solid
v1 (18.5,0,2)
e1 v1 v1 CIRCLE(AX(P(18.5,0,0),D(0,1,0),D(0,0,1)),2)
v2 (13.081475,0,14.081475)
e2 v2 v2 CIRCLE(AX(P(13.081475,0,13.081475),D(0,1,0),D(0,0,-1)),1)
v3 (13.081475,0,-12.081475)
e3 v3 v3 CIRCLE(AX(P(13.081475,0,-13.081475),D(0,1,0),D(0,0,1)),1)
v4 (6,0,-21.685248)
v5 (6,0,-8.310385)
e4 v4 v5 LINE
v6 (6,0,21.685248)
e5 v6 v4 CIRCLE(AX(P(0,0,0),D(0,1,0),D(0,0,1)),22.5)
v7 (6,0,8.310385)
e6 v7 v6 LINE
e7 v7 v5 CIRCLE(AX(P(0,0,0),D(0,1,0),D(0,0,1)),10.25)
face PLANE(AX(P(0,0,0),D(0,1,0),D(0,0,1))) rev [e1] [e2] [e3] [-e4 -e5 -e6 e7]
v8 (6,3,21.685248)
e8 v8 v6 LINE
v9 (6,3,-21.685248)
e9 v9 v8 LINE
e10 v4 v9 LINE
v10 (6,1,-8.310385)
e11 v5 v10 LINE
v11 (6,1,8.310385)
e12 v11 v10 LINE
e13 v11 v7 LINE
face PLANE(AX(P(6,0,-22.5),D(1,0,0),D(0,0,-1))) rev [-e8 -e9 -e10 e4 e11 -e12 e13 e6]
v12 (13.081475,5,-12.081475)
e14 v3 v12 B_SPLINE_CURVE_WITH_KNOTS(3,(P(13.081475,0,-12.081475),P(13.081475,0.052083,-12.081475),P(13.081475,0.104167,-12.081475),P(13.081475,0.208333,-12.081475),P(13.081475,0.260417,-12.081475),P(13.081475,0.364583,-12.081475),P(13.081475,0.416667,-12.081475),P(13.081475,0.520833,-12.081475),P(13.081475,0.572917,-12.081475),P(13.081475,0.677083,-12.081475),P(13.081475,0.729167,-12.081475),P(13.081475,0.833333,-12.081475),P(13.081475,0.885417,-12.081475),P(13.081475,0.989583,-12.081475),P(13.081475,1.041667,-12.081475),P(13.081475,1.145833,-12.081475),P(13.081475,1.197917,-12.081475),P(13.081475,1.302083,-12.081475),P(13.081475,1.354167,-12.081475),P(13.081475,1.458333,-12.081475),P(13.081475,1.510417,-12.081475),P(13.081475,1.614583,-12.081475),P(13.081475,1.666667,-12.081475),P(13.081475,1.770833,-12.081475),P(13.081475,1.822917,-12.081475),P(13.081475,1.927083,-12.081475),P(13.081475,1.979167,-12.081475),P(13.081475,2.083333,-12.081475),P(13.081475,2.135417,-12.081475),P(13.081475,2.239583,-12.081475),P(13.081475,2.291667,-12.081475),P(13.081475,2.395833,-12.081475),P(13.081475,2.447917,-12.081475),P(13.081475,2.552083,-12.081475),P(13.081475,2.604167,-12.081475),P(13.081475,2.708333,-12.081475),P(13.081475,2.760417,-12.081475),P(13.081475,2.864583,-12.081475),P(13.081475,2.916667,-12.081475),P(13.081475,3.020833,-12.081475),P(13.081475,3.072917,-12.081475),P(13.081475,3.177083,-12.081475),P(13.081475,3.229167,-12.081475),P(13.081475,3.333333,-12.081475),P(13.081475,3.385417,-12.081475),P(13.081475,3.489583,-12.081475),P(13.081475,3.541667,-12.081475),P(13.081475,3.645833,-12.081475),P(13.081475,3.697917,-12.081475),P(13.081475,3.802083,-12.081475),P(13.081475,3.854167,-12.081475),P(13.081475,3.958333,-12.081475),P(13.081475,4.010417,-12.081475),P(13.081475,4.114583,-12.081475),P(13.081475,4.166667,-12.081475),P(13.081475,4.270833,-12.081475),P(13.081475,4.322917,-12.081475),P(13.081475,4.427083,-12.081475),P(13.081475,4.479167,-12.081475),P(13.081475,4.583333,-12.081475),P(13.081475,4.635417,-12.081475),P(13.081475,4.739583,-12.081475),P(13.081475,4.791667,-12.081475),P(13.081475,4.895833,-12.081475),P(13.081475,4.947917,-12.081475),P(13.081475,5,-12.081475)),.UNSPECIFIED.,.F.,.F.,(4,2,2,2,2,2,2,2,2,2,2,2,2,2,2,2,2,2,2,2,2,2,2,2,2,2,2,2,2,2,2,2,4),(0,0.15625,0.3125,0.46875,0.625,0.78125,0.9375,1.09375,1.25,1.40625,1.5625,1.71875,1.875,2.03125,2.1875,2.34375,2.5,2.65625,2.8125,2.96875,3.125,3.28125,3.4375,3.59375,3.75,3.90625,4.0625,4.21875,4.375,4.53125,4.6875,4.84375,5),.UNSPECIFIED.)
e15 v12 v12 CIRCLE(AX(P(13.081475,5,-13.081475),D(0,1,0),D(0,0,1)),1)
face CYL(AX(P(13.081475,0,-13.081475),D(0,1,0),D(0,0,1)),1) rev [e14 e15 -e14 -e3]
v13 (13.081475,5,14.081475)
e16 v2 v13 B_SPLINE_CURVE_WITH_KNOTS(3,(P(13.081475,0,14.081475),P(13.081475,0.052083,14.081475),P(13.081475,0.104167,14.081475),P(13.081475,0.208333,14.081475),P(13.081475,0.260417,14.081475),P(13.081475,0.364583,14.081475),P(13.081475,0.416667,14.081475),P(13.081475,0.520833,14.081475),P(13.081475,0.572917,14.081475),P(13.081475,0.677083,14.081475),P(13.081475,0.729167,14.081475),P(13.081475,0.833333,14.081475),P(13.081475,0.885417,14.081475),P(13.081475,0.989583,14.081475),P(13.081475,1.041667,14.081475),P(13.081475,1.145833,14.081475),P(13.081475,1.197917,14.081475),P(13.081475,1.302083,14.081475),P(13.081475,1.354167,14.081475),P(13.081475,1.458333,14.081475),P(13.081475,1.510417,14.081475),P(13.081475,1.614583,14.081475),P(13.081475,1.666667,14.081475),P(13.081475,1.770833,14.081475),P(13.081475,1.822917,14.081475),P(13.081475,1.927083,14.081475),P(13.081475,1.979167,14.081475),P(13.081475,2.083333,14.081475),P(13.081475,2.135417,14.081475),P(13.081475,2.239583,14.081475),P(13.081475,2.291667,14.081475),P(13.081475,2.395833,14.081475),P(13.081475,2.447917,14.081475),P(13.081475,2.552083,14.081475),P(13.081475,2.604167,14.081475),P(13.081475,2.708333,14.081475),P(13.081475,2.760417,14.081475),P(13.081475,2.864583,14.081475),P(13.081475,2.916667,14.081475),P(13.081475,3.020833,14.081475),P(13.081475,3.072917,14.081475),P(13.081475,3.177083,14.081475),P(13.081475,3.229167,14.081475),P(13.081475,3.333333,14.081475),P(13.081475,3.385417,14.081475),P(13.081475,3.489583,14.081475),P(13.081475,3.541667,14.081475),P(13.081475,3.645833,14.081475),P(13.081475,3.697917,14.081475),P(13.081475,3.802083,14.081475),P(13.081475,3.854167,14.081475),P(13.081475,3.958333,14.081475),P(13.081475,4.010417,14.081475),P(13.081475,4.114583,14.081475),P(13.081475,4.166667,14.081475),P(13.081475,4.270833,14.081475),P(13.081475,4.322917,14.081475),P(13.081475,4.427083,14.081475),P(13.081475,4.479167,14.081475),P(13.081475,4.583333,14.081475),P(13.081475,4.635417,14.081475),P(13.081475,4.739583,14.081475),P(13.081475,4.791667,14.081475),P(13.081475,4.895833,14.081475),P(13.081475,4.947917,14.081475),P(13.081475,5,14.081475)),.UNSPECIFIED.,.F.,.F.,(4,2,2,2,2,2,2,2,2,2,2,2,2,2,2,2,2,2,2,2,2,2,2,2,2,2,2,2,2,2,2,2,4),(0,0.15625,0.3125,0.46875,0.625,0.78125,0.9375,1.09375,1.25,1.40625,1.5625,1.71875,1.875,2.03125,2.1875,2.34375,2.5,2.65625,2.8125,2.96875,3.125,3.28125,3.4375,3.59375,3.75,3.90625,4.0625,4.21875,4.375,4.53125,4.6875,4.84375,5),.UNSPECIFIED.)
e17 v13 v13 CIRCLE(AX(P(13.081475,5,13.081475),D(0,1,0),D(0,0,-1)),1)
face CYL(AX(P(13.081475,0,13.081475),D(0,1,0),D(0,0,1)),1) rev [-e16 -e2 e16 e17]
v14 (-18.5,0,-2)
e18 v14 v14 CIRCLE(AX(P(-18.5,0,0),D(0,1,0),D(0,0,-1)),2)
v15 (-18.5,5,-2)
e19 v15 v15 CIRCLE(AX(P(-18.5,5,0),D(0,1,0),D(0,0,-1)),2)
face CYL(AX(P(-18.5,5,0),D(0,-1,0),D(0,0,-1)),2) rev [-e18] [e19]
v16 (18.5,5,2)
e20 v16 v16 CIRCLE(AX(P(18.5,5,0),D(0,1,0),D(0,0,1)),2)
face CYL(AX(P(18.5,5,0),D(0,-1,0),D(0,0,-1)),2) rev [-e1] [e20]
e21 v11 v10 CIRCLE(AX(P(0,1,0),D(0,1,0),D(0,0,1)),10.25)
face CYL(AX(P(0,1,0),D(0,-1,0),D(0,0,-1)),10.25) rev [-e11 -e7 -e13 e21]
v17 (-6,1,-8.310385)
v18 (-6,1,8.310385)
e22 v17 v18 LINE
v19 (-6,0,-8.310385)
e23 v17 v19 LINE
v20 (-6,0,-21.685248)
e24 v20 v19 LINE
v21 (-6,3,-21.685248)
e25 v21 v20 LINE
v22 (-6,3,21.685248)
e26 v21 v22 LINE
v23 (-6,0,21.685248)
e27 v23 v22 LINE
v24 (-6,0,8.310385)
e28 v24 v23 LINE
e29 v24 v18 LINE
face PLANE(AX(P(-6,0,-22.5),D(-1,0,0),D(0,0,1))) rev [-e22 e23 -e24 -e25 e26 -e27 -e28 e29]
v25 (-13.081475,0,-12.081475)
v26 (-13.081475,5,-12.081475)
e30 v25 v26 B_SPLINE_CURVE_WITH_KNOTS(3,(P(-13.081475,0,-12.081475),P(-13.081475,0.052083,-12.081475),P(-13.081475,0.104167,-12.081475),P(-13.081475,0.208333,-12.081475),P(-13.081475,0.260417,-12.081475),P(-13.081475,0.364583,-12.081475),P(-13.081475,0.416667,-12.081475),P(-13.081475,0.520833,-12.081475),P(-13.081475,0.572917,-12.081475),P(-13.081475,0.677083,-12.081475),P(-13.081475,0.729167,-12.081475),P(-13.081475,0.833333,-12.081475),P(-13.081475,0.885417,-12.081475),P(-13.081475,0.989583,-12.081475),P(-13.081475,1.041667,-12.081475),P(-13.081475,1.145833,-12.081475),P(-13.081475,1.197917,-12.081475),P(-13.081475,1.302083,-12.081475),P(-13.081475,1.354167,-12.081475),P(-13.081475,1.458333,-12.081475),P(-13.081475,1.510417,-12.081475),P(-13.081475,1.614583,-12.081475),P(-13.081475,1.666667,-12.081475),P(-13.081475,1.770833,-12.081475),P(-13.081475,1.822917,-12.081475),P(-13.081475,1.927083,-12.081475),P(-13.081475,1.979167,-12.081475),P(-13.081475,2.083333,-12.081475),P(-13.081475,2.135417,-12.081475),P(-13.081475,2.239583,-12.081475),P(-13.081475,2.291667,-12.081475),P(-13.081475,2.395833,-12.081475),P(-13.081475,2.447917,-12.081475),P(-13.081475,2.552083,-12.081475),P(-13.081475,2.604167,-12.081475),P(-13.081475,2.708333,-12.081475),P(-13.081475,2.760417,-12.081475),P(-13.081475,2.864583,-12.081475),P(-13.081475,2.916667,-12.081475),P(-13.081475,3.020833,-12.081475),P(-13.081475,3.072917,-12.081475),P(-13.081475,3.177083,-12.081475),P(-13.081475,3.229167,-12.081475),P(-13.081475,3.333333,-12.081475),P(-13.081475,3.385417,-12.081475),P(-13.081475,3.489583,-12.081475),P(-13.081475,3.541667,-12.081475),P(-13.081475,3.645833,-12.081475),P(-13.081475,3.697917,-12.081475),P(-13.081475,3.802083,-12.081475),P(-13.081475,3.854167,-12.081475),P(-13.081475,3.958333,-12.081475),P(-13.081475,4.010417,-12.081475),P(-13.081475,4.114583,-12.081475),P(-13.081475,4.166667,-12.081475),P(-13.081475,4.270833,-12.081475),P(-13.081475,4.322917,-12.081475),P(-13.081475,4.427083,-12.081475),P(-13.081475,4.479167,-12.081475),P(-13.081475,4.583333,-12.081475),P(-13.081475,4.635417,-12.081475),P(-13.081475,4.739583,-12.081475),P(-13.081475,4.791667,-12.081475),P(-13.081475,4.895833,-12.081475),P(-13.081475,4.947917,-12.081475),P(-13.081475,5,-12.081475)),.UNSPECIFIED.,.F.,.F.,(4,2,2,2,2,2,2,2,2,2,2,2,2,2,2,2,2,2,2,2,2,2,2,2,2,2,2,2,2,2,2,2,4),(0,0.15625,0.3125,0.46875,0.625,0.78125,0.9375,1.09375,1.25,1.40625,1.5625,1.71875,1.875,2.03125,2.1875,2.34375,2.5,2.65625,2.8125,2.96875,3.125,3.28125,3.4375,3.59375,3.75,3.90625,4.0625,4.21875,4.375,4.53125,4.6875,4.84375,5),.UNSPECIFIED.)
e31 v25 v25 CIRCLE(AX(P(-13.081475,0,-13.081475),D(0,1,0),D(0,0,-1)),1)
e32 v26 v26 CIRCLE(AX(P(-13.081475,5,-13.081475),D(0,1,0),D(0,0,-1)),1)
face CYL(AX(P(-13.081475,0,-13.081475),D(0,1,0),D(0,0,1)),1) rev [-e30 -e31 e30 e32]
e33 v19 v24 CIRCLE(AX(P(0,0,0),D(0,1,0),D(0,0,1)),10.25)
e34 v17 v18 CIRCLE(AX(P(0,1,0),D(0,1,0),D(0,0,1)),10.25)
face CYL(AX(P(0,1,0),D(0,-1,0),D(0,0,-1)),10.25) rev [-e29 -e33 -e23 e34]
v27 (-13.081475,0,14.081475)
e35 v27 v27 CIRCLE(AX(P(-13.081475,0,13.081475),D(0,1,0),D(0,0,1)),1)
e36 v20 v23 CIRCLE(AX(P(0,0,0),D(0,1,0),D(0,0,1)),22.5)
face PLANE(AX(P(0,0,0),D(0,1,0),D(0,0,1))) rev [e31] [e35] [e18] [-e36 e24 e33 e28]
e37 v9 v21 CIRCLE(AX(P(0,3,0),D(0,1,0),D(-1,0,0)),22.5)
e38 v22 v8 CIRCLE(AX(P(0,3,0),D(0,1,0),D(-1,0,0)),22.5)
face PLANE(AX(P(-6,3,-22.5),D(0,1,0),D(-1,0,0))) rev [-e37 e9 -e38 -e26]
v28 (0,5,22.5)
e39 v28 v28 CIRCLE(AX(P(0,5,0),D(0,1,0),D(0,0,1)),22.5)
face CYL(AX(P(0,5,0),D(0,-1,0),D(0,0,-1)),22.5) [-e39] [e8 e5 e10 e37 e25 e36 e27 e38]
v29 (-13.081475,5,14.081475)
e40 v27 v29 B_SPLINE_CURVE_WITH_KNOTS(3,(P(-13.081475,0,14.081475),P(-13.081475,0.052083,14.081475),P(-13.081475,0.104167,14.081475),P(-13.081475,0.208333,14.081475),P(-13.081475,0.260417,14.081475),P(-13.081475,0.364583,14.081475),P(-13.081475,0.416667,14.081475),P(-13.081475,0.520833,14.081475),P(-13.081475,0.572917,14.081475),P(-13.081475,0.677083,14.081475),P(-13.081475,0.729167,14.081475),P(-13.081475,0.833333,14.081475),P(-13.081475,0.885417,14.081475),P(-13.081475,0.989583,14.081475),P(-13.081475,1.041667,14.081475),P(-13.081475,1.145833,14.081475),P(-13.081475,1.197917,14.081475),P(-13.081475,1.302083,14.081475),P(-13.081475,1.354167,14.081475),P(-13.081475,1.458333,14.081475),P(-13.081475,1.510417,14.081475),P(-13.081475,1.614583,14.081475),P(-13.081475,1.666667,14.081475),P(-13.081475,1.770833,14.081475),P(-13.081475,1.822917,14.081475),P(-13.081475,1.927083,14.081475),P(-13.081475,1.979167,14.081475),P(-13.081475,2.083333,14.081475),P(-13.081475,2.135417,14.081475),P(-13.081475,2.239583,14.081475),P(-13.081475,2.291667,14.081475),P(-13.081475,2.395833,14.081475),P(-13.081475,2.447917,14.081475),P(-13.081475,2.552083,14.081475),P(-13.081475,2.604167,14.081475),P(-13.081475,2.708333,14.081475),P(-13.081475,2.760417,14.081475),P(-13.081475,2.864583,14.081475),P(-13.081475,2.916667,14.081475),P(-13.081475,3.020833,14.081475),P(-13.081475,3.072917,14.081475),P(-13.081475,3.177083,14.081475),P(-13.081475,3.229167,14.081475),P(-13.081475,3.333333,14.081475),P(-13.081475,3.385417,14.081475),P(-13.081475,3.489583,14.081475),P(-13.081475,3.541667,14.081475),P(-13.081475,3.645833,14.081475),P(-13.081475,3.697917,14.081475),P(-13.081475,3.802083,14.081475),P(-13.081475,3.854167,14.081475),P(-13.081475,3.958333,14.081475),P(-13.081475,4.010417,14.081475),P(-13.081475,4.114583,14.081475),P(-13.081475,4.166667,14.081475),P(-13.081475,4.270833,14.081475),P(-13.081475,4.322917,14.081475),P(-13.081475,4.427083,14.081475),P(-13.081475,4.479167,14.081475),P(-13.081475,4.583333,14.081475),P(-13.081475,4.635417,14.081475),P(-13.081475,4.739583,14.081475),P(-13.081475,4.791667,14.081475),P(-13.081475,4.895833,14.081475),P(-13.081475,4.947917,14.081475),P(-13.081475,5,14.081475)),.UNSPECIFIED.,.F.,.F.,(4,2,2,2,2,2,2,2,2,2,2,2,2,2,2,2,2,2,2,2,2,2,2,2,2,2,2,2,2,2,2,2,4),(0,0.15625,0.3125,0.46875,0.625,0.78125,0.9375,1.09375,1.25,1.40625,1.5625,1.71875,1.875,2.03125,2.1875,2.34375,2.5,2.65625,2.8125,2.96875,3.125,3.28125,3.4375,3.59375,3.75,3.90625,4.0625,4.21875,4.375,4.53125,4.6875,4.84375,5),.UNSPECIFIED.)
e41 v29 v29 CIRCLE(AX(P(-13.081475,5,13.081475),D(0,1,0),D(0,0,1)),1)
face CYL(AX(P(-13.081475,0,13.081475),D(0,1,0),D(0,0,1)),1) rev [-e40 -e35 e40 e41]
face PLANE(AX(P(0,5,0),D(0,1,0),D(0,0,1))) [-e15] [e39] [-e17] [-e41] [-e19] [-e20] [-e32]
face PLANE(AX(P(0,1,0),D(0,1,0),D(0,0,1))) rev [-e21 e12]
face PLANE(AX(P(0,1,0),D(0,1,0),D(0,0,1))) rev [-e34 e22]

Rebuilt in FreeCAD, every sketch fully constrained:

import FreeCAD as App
import Part
import Sketcher
from FreeCAD import Vector
Q = App.Units.Quantity

doc = App.newDocument("Part")
body = doc.addObject("PartDesign::Body", "Body")

sketch1 = body.newObject("Sketcher::SketchObject", "Sketch")
sketch1.AttachmentSupport = (doc.getObject("XZ_Plane"), [""])
sketch1.MapMode = "FlatFace"
sketch1.addGeometry(Part.Circle(Vector(0, 0, 0), Vector(0, 0, 1), 22.5), False)
sketch1.addGeometry(Part.Circle(Vector(-18.5, 0, 0), Vector(0, 0, 1), 2), False)
sketch1.addGeometry(Part.Circle(Vector(18.5, 0, 0), Vector(0, 0, 1), 2), False)
sketch1.addConstraint(Sketcher.Constraint("Coincident", 0, 3, -1, 1))
sketch1.addConstraint(Sketcher.Constraint("Equal", 1, 2))
sketch1.addConstraint(Sketcher.Constraint("Symmetric", 1, 3, 2, 3, -1, 1))
sketch1.addConstraint(Sketcher.Constraint("PointOnObject", 1, 3, -1))
sketch1.addConstraint(Sketcher.Constraint("Diameter", 0, Q("45 mm")))
sketch1.addConstraint(Sketcher.Constraint("Diameter", 1, Q("4 mm")))
sketch1.addConstraint(Sketcher.Constraint("DistanceX", 1, 3, 2, 3, Q("37 mm")))
pad1 = body.newObject("PartDesign::Pad", "Pad")
pad1.Profile = sketch1
pad1.Length = 5
pad1.Reversed = True

sketch2 = body.newObject("Sketcher::SketchObject", "Sketch001")
sketch2.AttachmentSupport = (doc.getObject("XZ_Plane"), [""])
sketch2.MapMode = "FlatFace"
sketch2.addGeometry(Part.Circle(Vector(0, 0, 0), Vector(0, 0, 1), 10), False)
sketch2.addConstraint(Sketcher.Constraint("Coincident", 0, 3, -1, 1))
sketch2.addConstraint(Sketcher.Constraint("Diameter", 0, Q("20.5 mm")))
pocket1 = body.newObject("PartDesign::Pocket", "Pocket")
pocket1.Profile = sketch2
pocket1.Length = 1

sketch3 = body.newObject("Sketcher::SketchObject", "Sketch002")
sketch3.AttachmentSupport = (doc.getObject("XY_Plane"), [""])
sketch3.MapMode = "FlatFace"
sketch3.addGeometry(Part.LineSegment(Vector(-6, 3, 0), Vector(-6, 0, 0)), False)
sketch3.addGeometry(Part.LineSegment(Vector(-6, 0, 0), Vector(6, 0, 0)), False)
sketch3.addGeometry(Part.LineSegment(Vector(6, 0, 0), Vector(6, 3, 0)), False)
sketch3.addGeometry(Part.LineSegment(Vector(6, 3, 0), Vector(-6, 3, 0)), False)
sketch3.addConstraint(Sketcher.Constraint("Coincident", 0, 2, 1, 1))
sketch3.addConstraint(Sketcher.Constraint("Coincident", 1, 2, 2, 1))
sketch3.addConstraint(Sketcher.Constraint("Coincident", 2, 2, 3, 1))
sketch3.addConstraint(Sketcher.Constraint("Coincident", 3, 2, 0, 1))
sketch3.addConstraint(Sketcher.Constraint("Vertical", 0))
sketch3.addConstraint(Sketcher.Constraint("Horizontal", 1))
sketch3.addConstraint(Sketcher.Constraint("Vertical", 2))
sketch3.addConstraint(Sketcher.Constraint("Horizontal", 3))
sketch3.addConstraint(Sketcher.Constraint("Symmetric", 0, 2, 1, 2, -1, 1))
sketch3.addConstraint(Sketcher.Constraint("DistanceX", 1, 1, 1, 2, Q("12 mm")))
sketch3.addConstraint(Sketcher.Constraint("DistanceY", 0, 2, 0, 1, Q("3 mm")))
pocket2 = body.newObject("PartDesign::Pocket", "Pocket001")
pocket2.Profile = sketch3
pocket2.Type = "ThroughAll"
pocket2.Midplane = True

sketch4 = body.newObject("Sketcher::SketchObject", "Sketch003")
sketch4.AttachmentSupport = (doc.getObject("XZ_Plane"), [""])
sketch4.MapMode = "FlatFace"
sketch4.AttachmentOffset = App.Placement(Vector(0, 0, -5), App.Rotation())
sketch4.addGeometry(Part.Circle(Vector(13.1, -13.1, 0), Vector(0, 0, 1), 1), False)
sketch4.addGeometry(Part.Circle(Vector(13.1, 13.1, 0), Vector(0, 0, 1), 1), False)
sketch4.addGeometry(Part.Circle(Vector(-13.1, -13.1, 0), Vector(0, 0, 1), 1), False)
sketch4.addGeometry(Part.Circle(Vector(-13.1, 13.1, 0), Vector(0, 0, 1), 1), False)
sketch4.addConstraint(Sketcher.Constraint("Equal", 0, 1))
sketch4.addConstraint(Sketcher.Constraint("Equal", 1, 2))
sketch4.addConstraint(Sketcher.Constraint("Equal", 2, 3))
sketch4.addConstraint(Sketcher.Constraint("Symmetric", 1, 3, 2, 3, -1, 1))
sketch4.addConstraint(Sketcher.Constraint("Symmetric", 0, 3, 3, 3, -1, 1))
sketch4.addConstraint(Sketcher.Constraint("Symmetric", 0, 3, 2, 3, -2))
sketch4.addConstraint(Sketcher.Constraint("Diameter", 0, Q("2 mm")))
sketch4.addConstraint(Sketcher.Constraint("DistanceY", 0, 3, 1, 3, Q("26.162951 mm")))
sketch4.addConstraint(Sketcher.Constraint("DistanceX", 2, 3, 0, 3, Q("26.162951 mm")))
pocket3 = body.newObject("PartDesign::Pocket", "Pocket002")
pocket3.Profile = sketch4
pocket3.Type = "ThroughAll"
pocket3.Reversed = True

doc.recompute()
